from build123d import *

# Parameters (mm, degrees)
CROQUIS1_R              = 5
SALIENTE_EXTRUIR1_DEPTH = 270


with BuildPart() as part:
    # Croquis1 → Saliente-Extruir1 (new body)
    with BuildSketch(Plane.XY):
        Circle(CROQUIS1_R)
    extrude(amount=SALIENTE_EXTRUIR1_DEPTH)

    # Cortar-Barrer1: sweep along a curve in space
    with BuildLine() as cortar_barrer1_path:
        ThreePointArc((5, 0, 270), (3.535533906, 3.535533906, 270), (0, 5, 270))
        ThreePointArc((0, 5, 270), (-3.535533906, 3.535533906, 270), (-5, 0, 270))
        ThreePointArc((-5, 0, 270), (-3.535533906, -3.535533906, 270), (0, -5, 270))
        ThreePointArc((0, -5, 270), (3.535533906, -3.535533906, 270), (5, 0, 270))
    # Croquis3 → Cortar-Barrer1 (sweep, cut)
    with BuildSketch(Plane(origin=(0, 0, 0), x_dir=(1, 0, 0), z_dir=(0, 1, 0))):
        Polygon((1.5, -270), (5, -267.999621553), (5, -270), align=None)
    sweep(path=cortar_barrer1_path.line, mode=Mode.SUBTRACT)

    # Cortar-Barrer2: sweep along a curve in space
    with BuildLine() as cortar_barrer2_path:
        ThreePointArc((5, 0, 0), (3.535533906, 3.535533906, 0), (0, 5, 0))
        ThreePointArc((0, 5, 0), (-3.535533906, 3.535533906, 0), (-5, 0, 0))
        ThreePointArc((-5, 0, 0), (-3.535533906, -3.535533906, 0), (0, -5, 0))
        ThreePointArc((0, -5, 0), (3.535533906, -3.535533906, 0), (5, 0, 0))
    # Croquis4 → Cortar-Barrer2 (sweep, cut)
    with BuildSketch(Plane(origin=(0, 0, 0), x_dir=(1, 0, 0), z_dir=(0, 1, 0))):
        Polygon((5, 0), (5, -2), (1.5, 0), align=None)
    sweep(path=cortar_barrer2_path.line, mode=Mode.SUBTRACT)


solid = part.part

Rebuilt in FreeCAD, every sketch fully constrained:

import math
import FreeCAD as App
import Part
import Sketcher

V = App.Vector
Q = App.Units.Quantity


def add_polygon(sketch, points):
    """Adds a closed chain of lines whose ends are joined by coincident constraints."""
    first, n = sketch.GeometryCount, len(points)
    for a, b in zip(points, points[1:] + points[:1]):
        sketch.addGeometry(Part.LineSegment(App.Vector(*a, 0), App.Vector(*b, 0)), False)
    for i in range(n):
        sketch.addConstraint(Sketcher.Constraint("Coincident", first + i, 2, first + (i + 1) % n, 1))

doc = App.newDocument("Part")
body = doc.addObject("PartDesign::Body", "Body")

# Sketch on XY plane
sketch1 = doc.addObject("Sketcher::SketchObject", "Sketch")
body.addObject(sketch1)
sketch1.AttachmentSupport = (doc.XY_Plane, [""])
sketch1.MapMode = "FlatFace"
sketch1.addGeometry(Part.Circle(V(0, 0, 0), V(0, 0, 1), 5), False)
sketch1.addConstraint([
    Sketcher.Constraint("Coincident", 0, 3, -1, 1),
    Sketcher.Constraint("Diameter", 0, Q("10 mm")),
])
pad1 = doc.addObject("PartDesign::Pad", "Pad")
body.addObject(pad1)
pad1.Profile = sketch1
pad1.Length = 270

# Sketch on XZ plane
sketch2 = doc.addObject("Sketcher::SketchObject", "Sketch001")
body.addObject(sketch2)
sketch2.AttachmentSupport = (doc.XZ_Plane, [""])
sketch2.MapMode = "FlatFace"
add_polygon(sketch2, [(5, 267.999622), (1.5, 270), (5, 270)])  # lines 0-2
sketch2.addConstraint([
    Sketcher.Constraint("Horizontal", 1),
    Sketcher.Constraint("Vertical", 2),
    Sketcher.Constraint("DistanceX", 1, 1, 1, 2, Q("3.5 mm")),
    Sketcher.Constraint("DistanceY", -1, 1, 0, 2, Q("270 mm")),
    Sketcher.Constraint("DistanceX", -1, 1, 1, 2, Q("5 mm")),
    Sketcher.Constraint("DistanceY", 2, 2, 2, 1, Q("2.000378 mm")),
])

# Sketch on XY plane
sketch3 = doc.addObject("Sketcher::SketchObject", "Sketch002")
body.addObject(sketch3)
sketch3.AttachmentSupport = (doc.XY_Plane, [""])
sketch3.MapMode = "FlatFace"
sketch3.AttachmentOffset = App.Placement(V(0, 0, 270), App.Rotation())
sketch3.addGeometry([
    Part.ArcOfCircle(Part.Circle(V(0, 0, 0), V(0, 0, 1), 5), math.radians(0), math.radians(90)),
    Part.ArcOfCircle(Part.Circle(V(0, 0, 0), V(0, 0, 1), 5), math.radians(90), math.radians(180)),
    Part.ArcOfCircle(Part.Circle(V(0, 0, 0), V(0, 0, 1), 5), math.radians(180), math.radians(270)),
    Part.ArcOfCircle(Part.Circle(V(0, 0, 0), V(0, 0, 1), 5), math.radians(-90), math.radians(0)),
], False)
sketch3.addConstraint([
    Sketcher.Constraint("Tangent", 0, 2, 1, 1),
    Sketcher.Constraint("Tangent", 1, 2, 2, 1),
    Sketcher.Constraint("Tangent", 2, 2, 3, 1),
    Sketcher.Constraint("Tangent", 3, 2, 0, 1),
    Sketcher.Constraint("Coincident", 0, 3, -1, 1),
    Sketcher.Constraint("Equal", 0, 1),
    Sketcher.Constraint("PointOnObject", 0, 2, -2),
    Sketcher.Constraint("PointOnObject", 1, 2, -1),
    Sketcher.Constraint("PointOnObject", 2, 2, -2),
    Sketcher.Constraint("PointOnObject", 3, 2, -1),
    Sketcher.Constraint("Radius", 0, Q("5 mm")),
])
doc.recompute()

subtractivepipe = doc.addObject("PartDesign::SubtractivePipe", "SubtractivePipe")
body.addObject(subtractivepipe)
subtractivepipe.Profile = sketch2
subtractivepipe.Spine = (sketch3, ["Edge1", "Edge2", "Edge3", "Edge4"])

# Sketch on XZ plane
sketch4 = doc.addObject("Sketcher::SketchObject", "Sketch003")
body.addObject(sketch4)
sketch4.AttachmentSupport = (doc.XZ_Plane, [""])
sketch4.MapMode = "FlatFace"
add_polygon(sketch4, [(5, 2), (5, 0), (1.5, 0)])  # lines 0-2
sketch4.addConstraint([
    Sketcher.Constraint("Vertical", 0),
    Sketcher.Constraint("Horizontal", 1),
    Sketcher.Constraint("PointOnObject", 0, 2, -1),
    Sketcher.Constraint("DistanceY", 0, 2, 0, 1, Q("2 mm")),
    Sketcher.Constraint("DistanceX", 1, 2, 1, 1, Q("3.5 mm")),
    Sketcher.Constraint("DistanceX", -1, 1, 0, 2, Q("5 mm")),
])

# Sketch on XY plane
sketch5 = doc.addObject("Sketcher::SketchObject", "Sketch004")
body.addObject(sketch5)
sketch5.AttachmentSupport = (doc.XY_Plane, [""])
sketch5.MapMode = "FlatFace"
sketch5.addGeometry([
    Part.ArcOfCircle(Part.Circle(V(0, 0, 0), V(0, 0, 1), 5), math.radians(0), math.radians(90)),
    Part.ArcOfCircle(Part.Circle(V(0, 0, 0), V(0, 0, 1), 5), math.radians(90), math.radians(180)),
    Part.ArcOfCircle(Part.Circle(V(0, 0, 0), V(0, 0, 1), 5), math.radians(180), math.radians(270)),
    Part.ArcOfCircle(Part.Circle(V(0, 0, 0), V(0, 0, 1), 5), math.radians(-90), math.radians(0)),
], False)
sketch5.addConstraint([
    Sketcher.Constraint("Tangent", 0, 2, 1, 1),
    Sketcher.Constraint("Tangent", 1, 2, 2, 1),
    Sketcher.Constraint("Tangent", 2, 2, 3, 1),
    Sketcher.Constraint("Tangent", 3, 2, 0, 1),
    Sketcher.Constraint("Coincident", 0, 3, -1, 1),
    Sketcher.Constraint("Equal", 0, 1),
    Sketcher.Constraint("PointOnObject", 0, 2, -2),
    Sketcher.Constraint("PointOnObject", 1, 2, -1),
    Sketcher.Constraint("PointOnObject", 2, 2, -2),
    Sketcher.Constraint("PointOnObject", 3, 2, -1),
    Sketcher.Constraint("Radius", 0, Q("5 mm")),
])
doc.recompute()

subtractivepipe2 = doc.addObject("PartDesign::SubtractivePipe", "SubtractivePipe001")
body.addObject(subtractivepipe2)
subtractivepipe2.Profile = sketch4
subtractivepipe2.Spine = (sketch5, ["Edge1", "Edge2", "Edge3", "Edge4"])

doc.recompute()
